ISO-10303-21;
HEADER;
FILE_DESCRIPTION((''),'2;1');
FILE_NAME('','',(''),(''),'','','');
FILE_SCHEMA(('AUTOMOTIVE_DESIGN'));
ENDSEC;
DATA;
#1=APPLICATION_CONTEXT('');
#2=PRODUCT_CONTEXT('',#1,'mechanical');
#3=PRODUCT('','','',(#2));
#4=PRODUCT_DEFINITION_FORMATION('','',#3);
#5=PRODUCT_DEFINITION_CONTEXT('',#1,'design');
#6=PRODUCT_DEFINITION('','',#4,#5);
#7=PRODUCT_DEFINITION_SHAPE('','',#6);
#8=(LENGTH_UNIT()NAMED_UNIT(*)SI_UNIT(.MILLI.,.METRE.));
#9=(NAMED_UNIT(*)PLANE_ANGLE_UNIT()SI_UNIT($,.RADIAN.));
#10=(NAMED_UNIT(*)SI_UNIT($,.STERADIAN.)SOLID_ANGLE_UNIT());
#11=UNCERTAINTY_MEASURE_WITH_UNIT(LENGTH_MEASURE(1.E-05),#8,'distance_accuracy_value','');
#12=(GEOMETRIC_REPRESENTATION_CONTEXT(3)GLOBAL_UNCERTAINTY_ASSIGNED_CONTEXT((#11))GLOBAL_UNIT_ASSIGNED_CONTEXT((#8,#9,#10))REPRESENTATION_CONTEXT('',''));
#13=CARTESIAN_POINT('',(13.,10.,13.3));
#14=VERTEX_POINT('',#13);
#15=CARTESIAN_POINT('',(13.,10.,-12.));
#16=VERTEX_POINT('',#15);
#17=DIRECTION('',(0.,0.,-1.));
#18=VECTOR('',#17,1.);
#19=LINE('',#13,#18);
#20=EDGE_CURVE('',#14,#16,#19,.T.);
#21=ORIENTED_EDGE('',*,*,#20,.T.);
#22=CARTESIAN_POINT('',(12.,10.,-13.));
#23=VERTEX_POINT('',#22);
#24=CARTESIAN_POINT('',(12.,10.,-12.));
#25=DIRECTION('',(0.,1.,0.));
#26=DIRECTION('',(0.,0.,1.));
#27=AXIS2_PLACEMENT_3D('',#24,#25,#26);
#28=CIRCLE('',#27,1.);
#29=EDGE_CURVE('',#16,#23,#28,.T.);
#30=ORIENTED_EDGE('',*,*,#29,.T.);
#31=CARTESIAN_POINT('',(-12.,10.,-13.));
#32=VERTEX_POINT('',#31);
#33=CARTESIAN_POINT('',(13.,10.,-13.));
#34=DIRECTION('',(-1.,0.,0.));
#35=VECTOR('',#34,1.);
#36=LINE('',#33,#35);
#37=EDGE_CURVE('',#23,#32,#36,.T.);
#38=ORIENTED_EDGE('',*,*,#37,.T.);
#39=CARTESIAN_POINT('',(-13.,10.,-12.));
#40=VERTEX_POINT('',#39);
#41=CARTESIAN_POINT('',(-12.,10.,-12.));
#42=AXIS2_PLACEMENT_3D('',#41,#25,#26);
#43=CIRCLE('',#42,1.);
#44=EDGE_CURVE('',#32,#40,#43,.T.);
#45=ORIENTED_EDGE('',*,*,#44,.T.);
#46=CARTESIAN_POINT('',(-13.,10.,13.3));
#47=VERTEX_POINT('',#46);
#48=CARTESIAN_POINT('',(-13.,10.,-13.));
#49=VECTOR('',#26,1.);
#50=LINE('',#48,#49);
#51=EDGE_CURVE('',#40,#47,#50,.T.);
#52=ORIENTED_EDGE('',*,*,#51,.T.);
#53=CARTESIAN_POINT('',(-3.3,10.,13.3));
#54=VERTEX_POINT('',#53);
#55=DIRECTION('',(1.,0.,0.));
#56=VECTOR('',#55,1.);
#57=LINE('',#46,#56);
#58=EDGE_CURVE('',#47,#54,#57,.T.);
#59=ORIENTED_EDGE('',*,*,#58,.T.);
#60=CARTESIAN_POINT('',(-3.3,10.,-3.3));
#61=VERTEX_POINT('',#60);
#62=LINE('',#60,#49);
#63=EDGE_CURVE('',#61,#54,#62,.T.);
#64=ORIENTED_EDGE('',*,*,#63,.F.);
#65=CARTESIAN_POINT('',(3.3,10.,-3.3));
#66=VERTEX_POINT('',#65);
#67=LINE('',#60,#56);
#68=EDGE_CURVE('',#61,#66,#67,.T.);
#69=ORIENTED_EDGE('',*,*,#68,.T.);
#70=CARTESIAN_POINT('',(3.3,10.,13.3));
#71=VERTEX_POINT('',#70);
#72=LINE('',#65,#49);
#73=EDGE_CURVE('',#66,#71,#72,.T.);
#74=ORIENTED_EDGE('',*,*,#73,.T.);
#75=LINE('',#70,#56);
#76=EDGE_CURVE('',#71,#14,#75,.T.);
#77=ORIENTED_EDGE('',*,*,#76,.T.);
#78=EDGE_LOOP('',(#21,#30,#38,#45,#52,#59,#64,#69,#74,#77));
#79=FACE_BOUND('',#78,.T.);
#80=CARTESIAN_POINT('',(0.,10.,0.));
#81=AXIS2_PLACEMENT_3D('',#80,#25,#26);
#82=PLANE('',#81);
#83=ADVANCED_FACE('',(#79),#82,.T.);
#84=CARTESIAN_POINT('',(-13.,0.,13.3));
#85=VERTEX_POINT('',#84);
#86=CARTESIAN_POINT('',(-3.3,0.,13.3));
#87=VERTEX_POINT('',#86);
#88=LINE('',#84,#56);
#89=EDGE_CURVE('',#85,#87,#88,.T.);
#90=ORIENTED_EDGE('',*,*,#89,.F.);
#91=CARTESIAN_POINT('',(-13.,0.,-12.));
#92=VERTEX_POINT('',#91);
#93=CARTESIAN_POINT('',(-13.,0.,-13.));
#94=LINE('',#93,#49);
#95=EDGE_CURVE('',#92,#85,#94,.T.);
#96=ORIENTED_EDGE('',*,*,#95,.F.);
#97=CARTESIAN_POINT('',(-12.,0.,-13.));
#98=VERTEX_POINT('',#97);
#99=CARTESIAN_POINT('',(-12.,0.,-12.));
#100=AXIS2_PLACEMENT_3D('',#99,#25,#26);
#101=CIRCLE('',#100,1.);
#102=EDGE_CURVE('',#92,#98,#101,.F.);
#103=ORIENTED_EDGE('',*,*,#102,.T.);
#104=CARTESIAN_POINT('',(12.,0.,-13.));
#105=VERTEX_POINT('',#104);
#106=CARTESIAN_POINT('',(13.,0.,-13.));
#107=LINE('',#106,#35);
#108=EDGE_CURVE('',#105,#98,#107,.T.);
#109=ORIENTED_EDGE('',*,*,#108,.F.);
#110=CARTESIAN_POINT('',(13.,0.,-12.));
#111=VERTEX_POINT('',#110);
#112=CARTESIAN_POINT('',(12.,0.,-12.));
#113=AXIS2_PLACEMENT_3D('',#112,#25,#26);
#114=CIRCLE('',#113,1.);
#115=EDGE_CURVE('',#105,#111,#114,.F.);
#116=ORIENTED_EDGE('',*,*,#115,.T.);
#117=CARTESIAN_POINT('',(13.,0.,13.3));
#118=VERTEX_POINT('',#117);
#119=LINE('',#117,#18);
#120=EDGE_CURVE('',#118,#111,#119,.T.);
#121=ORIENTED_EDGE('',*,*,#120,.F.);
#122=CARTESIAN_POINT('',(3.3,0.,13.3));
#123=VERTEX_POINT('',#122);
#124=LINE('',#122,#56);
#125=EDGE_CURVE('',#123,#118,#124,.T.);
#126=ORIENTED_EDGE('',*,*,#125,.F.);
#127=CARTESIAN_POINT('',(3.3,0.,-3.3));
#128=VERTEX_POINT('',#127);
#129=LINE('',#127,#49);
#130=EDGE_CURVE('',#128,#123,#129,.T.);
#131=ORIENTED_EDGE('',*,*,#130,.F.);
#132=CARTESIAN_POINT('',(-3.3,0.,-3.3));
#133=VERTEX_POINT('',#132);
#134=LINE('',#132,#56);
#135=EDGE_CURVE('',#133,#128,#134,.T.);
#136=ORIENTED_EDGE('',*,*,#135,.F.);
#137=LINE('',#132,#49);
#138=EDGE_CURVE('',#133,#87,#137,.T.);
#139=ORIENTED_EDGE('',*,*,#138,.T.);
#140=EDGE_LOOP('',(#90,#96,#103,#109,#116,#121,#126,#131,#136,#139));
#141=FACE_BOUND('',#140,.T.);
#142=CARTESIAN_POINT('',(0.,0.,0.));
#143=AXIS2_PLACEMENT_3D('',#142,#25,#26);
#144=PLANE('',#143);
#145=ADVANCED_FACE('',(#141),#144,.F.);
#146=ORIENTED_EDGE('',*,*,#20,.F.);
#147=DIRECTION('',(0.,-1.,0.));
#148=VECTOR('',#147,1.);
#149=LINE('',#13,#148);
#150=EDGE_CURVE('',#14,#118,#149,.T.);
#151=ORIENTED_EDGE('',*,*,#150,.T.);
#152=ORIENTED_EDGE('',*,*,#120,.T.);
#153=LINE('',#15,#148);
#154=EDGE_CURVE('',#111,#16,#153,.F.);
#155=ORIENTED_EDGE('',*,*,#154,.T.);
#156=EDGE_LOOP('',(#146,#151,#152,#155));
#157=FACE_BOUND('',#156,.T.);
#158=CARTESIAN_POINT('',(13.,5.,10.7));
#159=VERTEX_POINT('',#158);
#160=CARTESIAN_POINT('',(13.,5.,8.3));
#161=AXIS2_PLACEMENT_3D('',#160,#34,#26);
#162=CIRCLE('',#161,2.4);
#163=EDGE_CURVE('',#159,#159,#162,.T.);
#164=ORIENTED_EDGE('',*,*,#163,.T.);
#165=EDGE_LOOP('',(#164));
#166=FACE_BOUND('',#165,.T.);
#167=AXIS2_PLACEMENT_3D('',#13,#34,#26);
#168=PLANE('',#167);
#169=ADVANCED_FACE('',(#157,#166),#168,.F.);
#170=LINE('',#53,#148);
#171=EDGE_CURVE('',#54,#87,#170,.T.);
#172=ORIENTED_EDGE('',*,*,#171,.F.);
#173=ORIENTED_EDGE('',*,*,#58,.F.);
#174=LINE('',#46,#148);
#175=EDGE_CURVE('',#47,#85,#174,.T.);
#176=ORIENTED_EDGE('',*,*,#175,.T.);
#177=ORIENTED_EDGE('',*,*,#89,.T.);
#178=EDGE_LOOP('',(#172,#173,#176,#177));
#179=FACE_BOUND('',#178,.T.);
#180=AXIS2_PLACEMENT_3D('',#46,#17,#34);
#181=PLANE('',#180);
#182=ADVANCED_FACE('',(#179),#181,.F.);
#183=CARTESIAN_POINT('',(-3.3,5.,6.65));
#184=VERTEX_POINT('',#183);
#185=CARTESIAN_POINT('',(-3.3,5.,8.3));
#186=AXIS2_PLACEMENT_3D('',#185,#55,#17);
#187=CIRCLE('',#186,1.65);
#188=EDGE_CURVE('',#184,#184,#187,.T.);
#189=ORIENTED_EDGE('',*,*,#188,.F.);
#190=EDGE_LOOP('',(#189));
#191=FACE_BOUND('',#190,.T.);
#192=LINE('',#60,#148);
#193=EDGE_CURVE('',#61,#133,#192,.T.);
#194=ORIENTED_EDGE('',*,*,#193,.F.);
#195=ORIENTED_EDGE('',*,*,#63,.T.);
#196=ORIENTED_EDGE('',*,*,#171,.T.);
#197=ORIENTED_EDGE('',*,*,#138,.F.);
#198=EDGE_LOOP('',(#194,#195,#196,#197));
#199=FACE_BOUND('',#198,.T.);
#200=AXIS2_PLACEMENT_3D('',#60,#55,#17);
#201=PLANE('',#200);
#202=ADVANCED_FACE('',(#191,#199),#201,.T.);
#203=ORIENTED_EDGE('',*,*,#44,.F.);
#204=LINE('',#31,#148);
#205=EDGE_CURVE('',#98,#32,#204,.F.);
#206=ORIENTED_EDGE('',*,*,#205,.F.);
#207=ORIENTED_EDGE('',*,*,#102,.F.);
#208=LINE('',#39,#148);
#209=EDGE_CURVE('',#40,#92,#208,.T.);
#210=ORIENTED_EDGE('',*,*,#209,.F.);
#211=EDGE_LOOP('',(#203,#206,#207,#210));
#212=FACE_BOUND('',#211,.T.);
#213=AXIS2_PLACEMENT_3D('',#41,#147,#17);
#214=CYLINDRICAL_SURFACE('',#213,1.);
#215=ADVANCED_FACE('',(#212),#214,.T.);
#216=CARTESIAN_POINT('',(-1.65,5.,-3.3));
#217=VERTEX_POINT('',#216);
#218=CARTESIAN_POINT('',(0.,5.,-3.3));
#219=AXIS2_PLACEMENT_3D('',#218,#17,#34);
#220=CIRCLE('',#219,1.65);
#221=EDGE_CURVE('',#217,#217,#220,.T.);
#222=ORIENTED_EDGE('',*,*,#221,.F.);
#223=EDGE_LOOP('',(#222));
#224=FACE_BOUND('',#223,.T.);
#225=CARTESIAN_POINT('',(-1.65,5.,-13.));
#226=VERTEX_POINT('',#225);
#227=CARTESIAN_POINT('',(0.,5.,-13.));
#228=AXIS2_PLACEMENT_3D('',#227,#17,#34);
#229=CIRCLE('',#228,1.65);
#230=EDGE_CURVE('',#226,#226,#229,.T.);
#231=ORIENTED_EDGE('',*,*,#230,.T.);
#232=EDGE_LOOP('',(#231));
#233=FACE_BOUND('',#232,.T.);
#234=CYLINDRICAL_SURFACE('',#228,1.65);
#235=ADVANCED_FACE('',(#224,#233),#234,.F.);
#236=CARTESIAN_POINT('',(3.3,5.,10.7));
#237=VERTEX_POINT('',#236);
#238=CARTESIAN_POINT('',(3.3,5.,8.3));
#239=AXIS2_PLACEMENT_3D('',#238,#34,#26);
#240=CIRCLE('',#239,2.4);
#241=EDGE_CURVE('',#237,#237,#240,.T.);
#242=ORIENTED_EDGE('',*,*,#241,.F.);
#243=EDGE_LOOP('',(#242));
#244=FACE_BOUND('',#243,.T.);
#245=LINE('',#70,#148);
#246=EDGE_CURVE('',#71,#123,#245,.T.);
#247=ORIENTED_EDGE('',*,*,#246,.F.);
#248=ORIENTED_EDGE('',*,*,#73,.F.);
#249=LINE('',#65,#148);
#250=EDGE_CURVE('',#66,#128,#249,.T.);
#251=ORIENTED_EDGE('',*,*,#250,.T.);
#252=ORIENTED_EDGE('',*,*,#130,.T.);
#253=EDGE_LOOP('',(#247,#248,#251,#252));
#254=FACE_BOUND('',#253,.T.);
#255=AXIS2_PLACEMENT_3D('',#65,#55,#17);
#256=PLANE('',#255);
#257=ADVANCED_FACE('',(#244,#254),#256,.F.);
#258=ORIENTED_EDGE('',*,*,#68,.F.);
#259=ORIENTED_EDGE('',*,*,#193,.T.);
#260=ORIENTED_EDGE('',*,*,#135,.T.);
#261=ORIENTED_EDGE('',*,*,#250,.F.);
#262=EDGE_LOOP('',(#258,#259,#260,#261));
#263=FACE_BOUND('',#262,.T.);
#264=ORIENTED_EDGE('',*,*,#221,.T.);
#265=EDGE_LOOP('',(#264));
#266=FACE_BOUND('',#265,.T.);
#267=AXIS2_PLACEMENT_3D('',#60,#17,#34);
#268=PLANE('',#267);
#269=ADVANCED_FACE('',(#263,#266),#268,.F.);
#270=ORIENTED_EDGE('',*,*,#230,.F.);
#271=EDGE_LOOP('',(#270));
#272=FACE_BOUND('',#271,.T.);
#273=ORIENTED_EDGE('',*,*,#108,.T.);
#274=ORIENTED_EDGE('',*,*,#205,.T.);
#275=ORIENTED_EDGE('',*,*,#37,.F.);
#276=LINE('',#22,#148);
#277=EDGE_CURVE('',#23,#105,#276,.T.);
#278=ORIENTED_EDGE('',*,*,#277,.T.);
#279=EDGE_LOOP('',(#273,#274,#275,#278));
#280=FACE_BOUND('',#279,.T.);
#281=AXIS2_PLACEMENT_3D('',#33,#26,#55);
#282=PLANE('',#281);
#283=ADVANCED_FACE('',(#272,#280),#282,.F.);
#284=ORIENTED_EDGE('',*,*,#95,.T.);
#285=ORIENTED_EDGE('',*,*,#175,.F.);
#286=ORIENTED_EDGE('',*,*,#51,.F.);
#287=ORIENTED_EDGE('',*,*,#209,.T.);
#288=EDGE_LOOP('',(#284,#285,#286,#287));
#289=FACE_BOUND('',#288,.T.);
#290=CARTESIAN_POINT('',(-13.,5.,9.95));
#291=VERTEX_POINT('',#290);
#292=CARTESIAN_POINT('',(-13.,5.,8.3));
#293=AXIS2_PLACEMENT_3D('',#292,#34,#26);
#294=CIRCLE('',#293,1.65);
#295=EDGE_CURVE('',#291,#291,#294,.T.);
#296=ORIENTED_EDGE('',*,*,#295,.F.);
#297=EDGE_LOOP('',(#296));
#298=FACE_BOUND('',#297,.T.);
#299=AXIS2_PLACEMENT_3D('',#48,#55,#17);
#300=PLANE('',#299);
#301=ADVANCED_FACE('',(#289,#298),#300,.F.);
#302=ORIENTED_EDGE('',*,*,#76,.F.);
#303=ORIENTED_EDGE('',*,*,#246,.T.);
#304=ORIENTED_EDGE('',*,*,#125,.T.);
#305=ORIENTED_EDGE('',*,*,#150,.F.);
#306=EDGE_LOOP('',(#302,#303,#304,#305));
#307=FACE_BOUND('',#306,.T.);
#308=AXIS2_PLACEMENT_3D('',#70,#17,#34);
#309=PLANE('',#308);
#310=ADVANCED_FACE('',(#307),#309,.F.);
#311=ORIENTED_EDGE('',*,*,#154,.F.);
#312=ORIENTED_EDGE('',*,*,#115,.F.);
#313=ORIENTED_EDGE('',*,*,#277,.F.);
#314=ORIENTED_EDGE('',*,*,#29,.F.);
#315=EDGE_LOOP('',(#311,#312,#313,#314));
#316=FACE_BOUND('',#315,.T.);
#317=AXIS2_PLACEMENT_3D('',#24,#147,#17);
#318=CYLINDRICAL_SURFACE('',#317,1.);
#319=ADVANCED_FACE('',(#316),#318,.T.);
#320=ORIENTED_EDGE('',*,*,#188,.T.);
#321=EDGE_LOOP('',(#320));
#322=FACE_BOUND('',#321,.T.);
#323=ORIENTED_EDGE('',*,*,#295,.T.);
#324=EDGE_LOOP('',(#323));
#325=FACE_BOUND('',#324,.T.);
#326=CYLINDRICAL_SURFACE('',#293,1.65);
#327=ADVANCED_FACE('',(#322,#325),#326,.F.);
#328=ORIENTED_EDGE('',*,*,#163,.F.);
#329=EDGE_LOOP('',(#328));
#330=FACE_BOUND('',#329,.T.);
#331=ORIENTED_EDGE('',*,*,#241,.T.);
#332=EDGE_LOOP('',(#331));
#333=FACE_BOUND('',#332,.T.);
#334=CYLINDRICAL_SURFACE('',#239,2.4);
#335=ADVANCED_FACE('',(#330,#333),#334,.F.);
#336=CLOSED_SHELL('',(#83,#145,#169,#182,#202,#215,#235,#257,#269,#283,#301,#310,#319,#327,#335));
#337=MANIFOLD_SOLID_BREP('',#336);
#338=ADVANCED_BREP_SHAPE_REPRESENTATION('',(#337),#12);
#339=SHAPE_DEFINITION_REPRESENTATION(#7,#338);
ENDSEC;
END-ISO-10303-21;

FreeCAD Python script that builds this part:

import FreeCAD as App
import Part
import Sketcher

V = App.Vector
Q = App.Units.Quantity


def edges_at(feature, points):
    """Names of the edges that pass closest to the given points."""
    edges = feature.Shape.Edges
    near = lambda p: min(range(len(edges)), key=lambda i: edges[i].distToShape(Part.Vertex(*p))[0])
    return sorted({f"Edge{near(p) + 1}" for p in points})

doc = App.newDocument("Part")
params = doc.addObject("Spreadsheet::Sheet", "Params")
for row, (alias, value) in enumerate([
    ("sketch1_width", "26 mm"),
    ("sketch1_width2", "6.6 mm"),
    ("sketch1_height", "16.6 mm"),
    ("sketch1_height2", "26.3 mm"),
    ("pad1_length", "10 mm"),
    ("sketch2_diameter", "3.3 mm"),
    ("hole_diameter", "3.3 mm"),
    ("hole_depth", "9.7 mm"),
    ("sketch3_width", "9.7 mm"),
    ("sketch3_height", "2.4 mm"),
    ("groove_angle", "360 deg"),
    ("sketch4_diameter", "3.3 mm"),
    ("hole2_diameter", "3.3 mm"),
    ("fillet_radius", "1 mm"),
], start=1):
    params.set(f"A{row}", alias)
    params.set(f"B{row}", "=" + value)
    params.setAlias(f"B{row}", alias)

body = doc.addObject("PartDesign::Body", "Body")

# Sketch on XZ plane
sketch1 = doc.addObject("Sketcher::SketchObject", "Sketch")
body.addObject(sketch1)
sketch1.AttachmentSupport = (doc.XZ_Plane, [""])
sketch1.MapMode = "FlatFace"
sketch1.addGeometry([
    Part.LineSegment(V(-3.3, 13.3, 0), V(-3.3, -3.3, 0)),  # 0
    Part.LineSegment(V(-3.3, -3.3, 0), V(3.3, -3.3, 0)),  # 1
    Part.LineSegment(V(3.3, -3.3, 0), V(3.3, 13.3, 0)),  # 2
    Part.LineSegment(V(3.3, 13.3, 0), V(13, 13.3, 0)),  # 3
    Part.LineSegment(V(13, 13.3, 0), V(13, -13, 0)),  # 4
    Part.LineSegment(V(13, -13, 0), V(-13, -13, 0)),  # 5
    Part.LineSegment(V(-13, -13, 0), V(-13, 13.3, 0)),  # 6
    Part.LineSegment(V(-13, 13.3, 0), V(-3.3, 13.3, 0)),  # 7
], False)
sketch1.addConstraint([
    Sketcher.Constraint("Coincident", 0, 2, 1, 1),
    Sketcher.Constraint("Coincident", 1, 2, 2, 1),
    Sketcher.Constraint("Coincident", 2, 2, 3, 1),
    Sketcher.Constraint("Coincident", 3, 2, 4, 1),
    Sketcher.Constraint("Coincident", 4, 2, 5, 1),
    Sketcher.Constraint("Coincident", 5, 2, 6, 1),
    Sketcher.Constraint("Coincident", 6, 2, 7, 1),
    Sketcher.Constraint("Coincident", 7, 2, 0, 1),
    Sketcher.Constraint("Vertical", 0),
    Sketcher.Constraint("Horizontal", 1),
    Sketcher.Constraint("Vertical", 2),
    Sketcher.Constraint("Horizontal", 3),
    Sketcher.Constraint("Vertical", 4),
    Sketcher.Constraint("Horizontal", 5),
    Sketcher.Constraint("Vertical", 6),
    Sketcher.Constraint("Horizontal", 7),
    Sketcher.Constraint("Symmetric", 3, 2, 6, 2, -2),
    Sketcher.Constraint("Equal", 3, 7),
    Sketcher.Constraint("DistanceX", 5, 2, 5, 1, Q("26 mm")),
    Sketcher.Constraint("DistanceX", 1, 1, 1, 2, Q("6.6 mm")),
    Sketcher.Constraint("DistanceY", 0, 2, 0, 1, Q("16.6 mm")),
    Sketcher.Constraint("DistanceY", 4, 2, 4, 1, Q("26.3 mm")),
    Sketcher.Constraint("DistanceY", 4, 2, -1, 1, Q("13 mm")),
])
sketch1.setExpression("Constraints[18]", "Params.sketch1_width")
sketch1.setExpression("Constraints[19]", "Params.sketch1_width2")
sketch1.setExpression("Constraints[20]", "Params.sketch1_height")
sketch1.setExpression("Constraints[21]", "Params.sketch1_height2")
pad1 = doc.addObject("PartDesign::Pad", "Pad")
body.addObject(pad1)
pad1.Profile = sketch1
pad1.setExpression("Length", "Params.pad1_length")
pad1.Reversed = True

# Sketch on YZ plane
sketch2 = doc.addObject("Sketcher::SketchObject", "Sketch001")
body.addObject(sketch2)
sketch2.AttachmentSupport = (doc.YZ_Plane, [""])
sketch2.MapMode = "FlatFace"
sketch2.AttachmentOffset = App.Placement(V(0, 0, -13), App.Rotation())
sketch2.addGeometry(Part.Circle(V(5, 8.3, 0), V(0, 0, 1), 1.65), False)
sketch2.addConstraint([
    Sketcher.Constraint("Diameter", 0, Q("3.3 mm")),
    Sketcher.Constraint("DistanceX", -1, 1, 0, 3, Q("5 mm")),
    Sketcher.Constraint("DistanceY", -1, 1, 0, 3, Q("8.3 mm")),
])
sketch2.setExpression("Constraints[0]", "Params.sketch2_diameter")
doc.recompute()
hole = doc.addObject("PartDesign::Hole", "Hole")
body.addObject(hole)
hole.Profile = sketch2
hole.ThreadType = "None"
hole.setExpression("Diameter", "Params.hole_diameter")
hole.DepthType = "Dimension"
hole.setExpression("Depth", "Params.hole_depth")
hole.DrillPoint = "Flat"
hole.Reversed = True

# Sketch on XZ plane
sketch3 = doc.addObject("Sketcher::SketchObject", "Sketch002")
body.addObject(sketch3)
sketch3.AttachmentSupport = (doc.XZ_Plane, [""])
sketch3.MapMode = "FlatFace"
sketch3.AttachmentOffset = App.Placement(V(0, 0, -5), App.Rotation())
sketch3.addGeometry([
    Part.LineSegment(V(13, 8.3, 0), V(3.3, 8.3, 0)),
    Part.LineSegment(V(3.3, 8.3, 0), V(3.3, 10.7, 0)),
    Part.LineSegment(V(3.3, 10.7, 0), V(13, 10.7, 0)),
    Part.LineSegment(V(13, 10.7, 0), V(13, 8.3, 0)),
], False)
sketch3.addGeometry(Part.LineSegment(V(3.3, 8.3, 0), V(13, 8.3, 0)), True)  # axis
sketch3.addConstraint([
    Sketcher.Constraint("Coincident", 0, 2, 1, 1),
    Sketcher.Constraint("Coincident", 1, 2, 2, 1),
    Sketcher.Constraint("Coincident", 2, 2, 3, 1),
    Sketcher.Constraint("Coincident", 3, 2, 0, 1),
    Sketcher.Constraint("Horizontal", 0),
    Sketcher.Constraint("Vertical", 1),
    Sketcher.Constraint("Horizontal", 2),
    Sketcher.Constraint("Vertical", 3),
    Sketcher.Constraint("Horizontal", 4),
    Sketcher.Constraint("Coincident", 4, 1, 0, 2),
    Sketcher.Constraint("Vertical", 2, 2, 4, 2),
    Sketcher.Constraint("DistanceX", 0, 2, 0, 1, Q("9.7 mm")),
    Sketcher.Constraint("DistanceY", 1, 1, 1, 2, Q("2.4 mm")),
    Sketcher.Constraint("DistanceX", -1, 1, 2, 2, Q("13 mm")),
    Sketcher.Constraint("DistanceY", -1, 1, 0, 2, Q("8.3 mm")),
])
sketch3.setExpression("Constraints[11]", "Params.sketch3_width")
sketch3.setExpression("Constraints[12]", "Params.sketch3_height")
groove = doc.addObject("PartDesign::Groove", "Groove")
body.addObject(groove)
groove.Profile = sketch3
groove.ReferenceAxis = (sketch3, ["Axis0"])
groove.setExpression("Angle", "Params.groove_angle")

# Sketch on XY plane
sketch4 = doc.addObject("Sketcher::SketchObject", "Sketch003")
body.addObject(sketch4)
sketch4.AttachmentSupport = (doc.XY_Plane, [""])
sketch4.MapMode = "FlatFace"
sketch4.AttachmentOffset = App.Placement(V(0, 0, -13), App.Rotation())
sketch4.addGeometry(Part.Circle(V(0, 5, 0), V(0, 0, 1), 1.65), False)
sketch4.addConstraint([
    Sketcher.Constraint("PointOnObject", 0, 3, -2),
    Sketcher.Constraint("Diameter", 0, Q("3.3 mm")),
    Sketcher.Constraint("DistanceY", -1, 1, 0, 3, Q("5 mm")),
])
sketch4.setExpression("Constraints[1]", "Params.sketch4_diameter")
doc.recompute()
hole2 = doc.addObject("PartDesign::Hole", "Hole001")
body.addObject(hole2)
hole2.Profile = sketch4
hole2.ThreadType = "None"
hole2.setExpression("Diameter", "Params.hole2_diameter")
hole2.DepthType = "ThroughAll"
hole2.Reversed = True
doc.recompute()

fillet = doc.addObject("PartDesign::Fillet", "Fillet")
body.addObject(fillet)
fillet.Base = (hole2, edges_at(hole2, [(-13, 5, -13), (13, 5, -13)]))
fillet.setExpression("Radius", "Params.fillet_radius")

doc.recompute()
